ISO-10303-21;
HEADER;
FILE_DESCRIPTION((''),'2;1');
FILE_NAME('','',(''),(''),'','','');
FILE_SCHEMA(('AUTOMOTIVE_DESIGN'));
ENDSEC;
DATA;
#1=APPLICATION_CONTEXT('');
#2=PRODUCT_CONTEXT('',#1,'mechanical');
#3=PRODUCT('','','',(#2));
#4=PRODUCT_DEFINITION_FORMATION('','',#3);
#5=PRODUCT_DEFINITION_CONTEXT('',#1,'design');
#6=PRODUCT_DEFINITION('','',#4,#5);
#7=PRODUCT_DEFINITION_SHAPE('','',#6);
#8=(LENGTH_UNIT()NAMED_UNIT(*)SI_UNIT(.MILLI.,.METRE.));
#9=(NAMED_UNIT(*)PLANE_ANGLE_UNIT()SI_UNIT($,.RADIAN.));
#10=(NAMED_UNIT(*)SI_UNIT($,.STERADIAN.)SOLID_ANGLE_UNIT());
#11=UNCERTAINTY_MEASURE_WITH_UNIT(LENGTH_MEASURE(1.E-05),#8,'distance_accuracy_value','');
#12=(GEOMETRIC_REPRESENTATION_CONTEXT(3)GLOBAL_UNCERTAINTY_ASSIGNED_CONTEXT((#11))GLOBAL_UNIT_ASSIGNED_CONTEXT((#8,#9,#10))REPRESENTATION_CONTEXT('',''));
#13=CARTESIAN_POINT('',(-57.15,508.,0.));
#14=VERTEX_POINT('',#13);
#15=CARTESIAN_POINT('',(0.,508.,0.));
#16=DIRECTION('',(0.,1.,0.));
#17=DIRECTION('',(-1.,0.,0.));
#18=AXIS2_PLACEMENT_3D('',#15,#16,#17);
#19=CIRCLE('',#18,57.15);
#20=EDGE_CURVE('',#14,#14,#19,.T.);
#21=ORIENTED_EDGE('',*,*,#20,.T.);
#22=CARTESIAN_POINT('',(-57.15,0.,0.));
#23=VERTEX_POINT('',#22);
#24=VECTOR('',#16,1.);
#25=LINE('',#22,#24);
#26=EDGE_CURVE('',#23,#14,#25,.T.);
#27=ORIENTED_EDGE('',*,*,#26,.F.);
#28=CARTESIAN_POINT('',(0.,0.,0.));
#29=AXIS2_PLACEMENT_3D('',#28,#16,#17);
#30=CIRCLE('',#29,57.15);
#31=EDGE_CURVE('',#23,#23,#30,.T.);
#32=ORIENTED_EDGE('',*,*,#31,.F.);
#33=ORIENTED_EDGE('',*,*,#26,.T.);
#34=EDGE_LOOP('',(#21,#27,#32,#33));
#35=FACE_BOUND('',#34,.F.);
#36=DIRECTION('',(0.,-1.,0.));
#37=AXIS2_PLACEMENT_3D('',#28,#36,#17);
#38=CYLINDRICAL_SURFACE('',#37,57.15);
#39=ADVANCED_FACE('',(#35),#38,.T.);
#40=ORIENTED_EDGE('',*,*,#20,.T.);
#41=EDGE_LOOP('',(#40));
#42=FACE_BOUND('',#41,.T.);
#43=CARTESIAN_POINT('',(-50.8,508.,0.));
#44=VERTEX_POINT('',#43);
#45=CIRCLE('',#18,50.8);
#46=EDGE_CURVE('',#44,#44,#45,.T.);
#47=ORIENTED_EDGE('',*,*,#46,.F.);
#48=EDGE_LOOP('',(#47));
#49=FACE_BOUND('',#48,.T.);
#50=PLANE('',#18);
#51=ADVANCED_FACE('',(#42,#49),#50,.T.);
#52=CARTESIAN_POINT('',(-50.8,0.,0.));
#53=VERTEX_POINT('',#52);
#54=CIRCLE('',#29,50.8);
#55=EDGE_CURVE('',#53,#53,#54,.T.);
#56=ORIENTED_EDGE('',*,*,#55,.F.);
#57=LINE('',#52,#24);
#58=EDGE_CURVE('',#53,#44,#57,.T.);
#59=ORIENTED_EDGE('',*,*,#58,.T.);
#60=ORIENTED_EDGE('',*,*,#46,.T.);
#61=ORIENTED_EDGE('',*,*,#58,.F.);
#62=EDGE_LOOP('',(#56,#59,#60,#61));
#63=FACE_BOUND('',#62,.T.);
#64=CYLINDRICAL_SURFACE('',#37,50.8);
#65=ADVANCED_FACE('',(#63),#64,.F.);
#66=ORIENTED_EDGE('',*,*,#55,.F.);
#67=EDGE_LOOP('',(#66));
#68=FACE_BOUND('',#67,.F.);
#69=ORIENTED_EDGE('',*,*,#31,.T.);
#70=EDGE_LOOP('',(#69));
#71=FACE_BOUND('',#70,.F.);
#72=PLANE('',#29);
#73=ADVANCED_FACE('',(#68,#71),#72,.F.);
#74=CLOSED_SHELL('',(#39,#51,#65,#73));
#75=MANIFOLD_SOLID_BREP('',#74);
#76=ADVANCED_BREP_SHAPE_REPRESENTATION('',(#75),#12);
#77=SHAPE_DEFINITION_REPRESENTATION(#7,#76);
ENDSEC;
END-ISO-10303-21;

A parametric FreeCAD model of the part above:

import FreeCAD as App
import Part
import Sketcher
from FreeCAD import Vector
Q = App.Units.Quantity

doc = App.newDocument("Part")
body = doc.addObject("PartDesign::Body", "Body")

# Sketch on XZ plane
sketch1 = body.newObject("Sketcher::SketchObject", "Sketch")
sketch1.AttachmentSupport = (doc.getObject("XZ_Plane"), [""])
sketch1.MapMode = "FlatFace"
sketch1.addGeometry(Part.Circle(Vector(0, 0, 0), Vector(0, 0, 1), 57), False)
sketch1.addGeometry(Part.Circle(Vector(0, 0, 0), Vector(0, 0, 1), 51), False)
sketch1.addConstraint(Sketcher.Constraint("Coincident", 0, 3, -1, 1))
sketch1.addConstraint(Sketcher.Constraint("Coincident", 1, 3, -1, 1))
sketch1.addConstraint(Sketcher.Constraint("Diameter", 1, Q("4 in")))
sketch1.addConstraint(Sketcher.Constraint("Diameter", 0, Q("4.5 in")))
pad1 = body.newObject("PartDesign::Pad", "Pad")
pad1.Profile = sketch1
pad1.Length = Q("20 in")
pad1.Reversed = True

doc.recompute()
